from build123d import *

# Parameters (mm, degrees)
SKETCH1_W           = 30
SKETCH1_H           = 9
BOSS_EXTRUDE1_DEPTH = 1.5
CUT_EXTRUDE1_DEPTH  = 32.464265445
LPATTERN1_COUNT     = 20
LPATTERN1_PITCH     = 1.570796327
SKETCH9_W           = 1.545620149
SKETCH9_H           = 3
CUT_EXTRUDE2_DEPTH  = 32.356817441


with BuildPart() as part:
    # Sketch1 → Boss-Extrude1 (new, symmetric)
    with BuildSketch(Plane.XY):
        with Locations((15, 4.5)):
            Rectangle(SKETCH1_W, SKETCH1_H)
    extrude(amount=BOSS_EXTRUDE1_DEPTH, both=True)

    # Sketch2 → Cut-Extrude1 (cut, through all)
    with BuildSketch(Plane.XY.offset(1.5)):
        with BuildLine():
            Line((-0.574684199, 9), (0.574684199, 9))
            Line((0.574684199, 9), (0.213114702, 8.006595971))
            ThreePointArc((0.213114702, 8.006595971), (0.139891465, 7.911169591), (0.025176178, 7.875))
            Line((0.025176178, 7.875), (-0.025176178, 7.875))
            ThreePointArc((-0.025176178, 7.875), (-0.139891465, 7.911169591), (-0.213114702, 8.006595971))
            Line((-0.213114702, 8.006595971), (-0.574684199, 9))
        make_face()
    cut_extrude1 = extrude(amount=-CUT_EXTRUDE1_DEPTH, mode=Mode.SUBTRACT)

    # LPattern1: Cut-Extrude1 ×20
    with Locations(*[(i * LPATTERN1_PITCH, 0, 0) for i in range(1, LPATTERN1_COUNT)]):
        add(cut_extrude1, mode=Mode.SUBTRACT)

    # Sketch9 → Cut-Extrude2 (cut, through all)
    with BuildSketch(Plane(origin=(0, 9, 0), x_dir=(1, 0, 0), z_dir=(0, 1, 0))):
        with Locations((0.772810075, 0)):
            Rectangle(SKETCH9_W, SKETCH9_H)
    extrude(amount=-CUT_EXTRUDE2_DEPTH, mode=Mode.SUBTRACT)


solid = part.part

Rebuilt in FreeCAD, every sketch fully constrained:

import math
import FreeCAD as App
import Part
import Sketcher
from FreeCAD import Vector
Q = App.Units.Quantity

doc = App.newDocument("Part")
params = doc.addObject("Spreadsheet::Sheet", "Params")
for row, (alias, value) in enumerate([
    ("sketch1_width", "30 mm"),
    ("sketch1_height", "9 mm"),
    ("pad1_length", "3 mm"),
    ("sketch2_radius", "0.2 mm"),
    ("linearpattern_pitch", "1.570796 mm"),
    ("sketch3_height", "3 mm"),
], start=1):
    params.set(f"A{row}", alias)
    params.set(f"B{row}", "=" + value)
    params.setAlias(f"B{row}", alias)

body = doc.addObject("PartDesign::Body", "Body")

sketch1 = body.newObject("Sketcher::SketchObject", "Sketch")
sketch1.AttachmentSupport = (doc.getObject("XY_Plane"), [""])
sketch1.MapMode = "FlatFace"
sketch1.addGeometry([
    Part.LineSegment(Vector(0, 9, 0), Vector(0, 0, 0)),
    Part.LineSegment(Vector(0, 0, 0), Vector(30, 0, 0)),
    Part.LineSegment(Vector(30, 0, 0), Vector(30, 9, 0)),
    Part.LineSegment(Vector(30, 9, 0), Vector(0, 9, 0)),
], False)
sketch1.addConstraint([
    Sketcher.Constraint("Coincident", 0, 2, 1, 1),
    Sketcher.Constraint("Coincident", 1, 2, 2, 1),
    Sketcher.Constraint("Coincident", 2, 2, 3, 1),
    Sketcher.Constraint("Coincident", 3, 2, 0, 1),
    Sketcher.Constraint("Vertical", 0),
    Sketcher.Constraint("Horizontal", 1),
    Sketcher.Constraint("Vertical", 2),
    Sketcher.Constraint("Horizontal", 3),
    Sketcher.Constraint("Coincident", 0, 2, -1, 1),
    Sketcher.Constraint("DistanceX", 1, 1, 1, 2, Q("30 mm")),
    Sketcher.Constraint("DistanceY", 0, 2, 0, 1, Q("9 mm")),
])
sketch1.setExpression("Constraints[9]", "Params.sketch1_width")
sketch1.setExpression("Constraints[10]", "Params.sketch1_height")
pad1 = body.newObject("PartDesign::Pad", "Pad")
pad1.Profile = sketch1
pad1.setExpression("Length", "Params.pad1_length")
pad1.Midplane = True

sketch2 = body.newObject("Sketcher::SketchObject", "Sketch001")
sketch2.AttachmentSupport = (doc.getObject("XY_Plane"), [""])
sketch2.MapMode = "FlatFace"
sketch2.AttachmentOffset = App.Placement(Vector(0, 0, 1.5), App.Rotation())
sketch2.addGeometry([
    Part.LineSegment(Vector(0.57, 9, 0), Vector(-0.57, 9, 0)),
    Part.LineSegment(Vector(-0.57, 9, 0), Vector(-0.21, 8.01, 0)),
    Part.ArcOfCircle(Part.Circle(Vector(-0.03, 8.07, 0), Vector(0, 0, 1), 0.2), math.radians(-160), math.radians(-90)),
    Part.LineSegment(Vector(-0.03, 7.88, 0), Vector(0.03, 7.88, 0)),
    Part.ArcOfCircle(Part.Circle(Vector(0.03, 8.07, 0), Vector(0, 0, 1), 0.2), math.radians(-90), math.radians(-20)),
    Part.LineSegment(Vector(0.21, 8.01, 0), Vector(0.57, 9, 0)),
], False)
sketch2.addConstraint([
    Sketcher.Constraint("Coincident", 0, 2, 1, 1),
    Sketcher.Constraint("Tangent", 1, 2, 2, 1),
    Sketcher.Constraint("Tangent", 2, 2, 3, 1),
    Sketcher.Constraint("Tangent", 3, 2, 4, 1),
    Sketcher.Constraint("Tangent", 4, 2, 5, 1),
    Sketcher.Constraint("Coincident", 5, 2, 0, 1),
    Sketcher.Constraint("Horizontal", 0),
    Sketcher.Constraint("Horizontal", 3),
    Sketcher.Constraint("Equal", 2, 4),
    Sketcher.Constraint("Symmetric", 1, 2, 4, 2, -2),
    Sketcher.Constraint("Radius", 2, Q("0.2 mm")),
    Sketcher.Constraint("Angle", 1, Q("-70 deg")),
    Sketcher.Constraint("DistanceY", -1, 1, 0, 2, Q("9 mm")),
    Sketcher.Constraint("DistanceY", -1, 1, 2, 3, Q("8.075 mm")),
    Sketcher.Constraint("DistanceX", 0, 2, 0, 1, Q("1.149368 mm")),
])
sketch2.setExpression("Constraints[10]", "Params.sketch2_radius")
pocket1 = body.newObject("PartDesign::Pocket", "Pocket")
pocket1.Profile = sketch2
pocket1.Type = "ThroughAll"
doc.recompute()

linearpattern = body.newObject("PartDesign::LinearPattern", "LinearPattern")
linearpattern.Originals = [pocket1]
linearpattern.Direction = (doc.getObject("X_Axis"), [""])
linearpattern.Mode = "offset"
linearpattern.setExpression("Offset", "Params.linearpattern_pitch")
linearpattern.Occurrences = 20
body.Tip = linearpattern

sketch3 = body.newObject("Sketcher::SketchObject", "Sketch002")
sketch3.AttachmentSupport = (doc.getObject("XZ_Plane"), [""])
sketch3.MapMode = "FlatFace"
sketch3.AttachmentOffset = App.Placement(Vector(0, 0, -9), App.Rotation())
sketch3.addGeometry([
    Part.LineSegment(Vector(0, -1.5, 0), Vector(0, 1.5, 0)),
    Part.LineSegment(Vector(0, 1.5, 0), Vector(1.5, 1.5, 0)),
    Part.LineSegment(Vector(1.5, 1.5, 0), Vector(1.5, -1.5, 0)),
    Part.LineSegment(Vector(1.5, -1.5, 0), Vector(0, -1.5, 0)),
], False)
sketch3.addConstraint([
    Sketcher.Constraint("Coincident", 0, 2, 1, 1),
    Sketcher.Constraint("Coincident", 1, 2, 2, 1),
    Sketcher.Constraint("Coincident", 2, 2, 3, 1),
    Sketcher.Constraint("Coincident", 3, 2, 0, 1),
    Sketcher.Constraint("Vertical", 0),
    Sketcher.Constraint("Horizontal", 1),
    Sketcher.Constraint("Vertical", 2),
    Sketcher.Constraint("Horizontal", 3),
    Sketcher.Constraint("Symmetric", 0, 2, 3, 2, -1, 1),
    Sketcher.Constraint("DistanceY", 0, 1, 0, 2, Q("3 mm")),
    Sketcher.Constraint("DistanceX", 1, 1, 1, 2, Q("1.54562 mm")),
])
sketch3.setExpression("Constraints[9]", "Params.sketch3_height")
pocket2 = body.newObject("PartDesign::Pocket", "Pocket001")
pocket2.Profile = sketch3
pocket2.Type = "ThroughAll"
pocket2.Reversed = True

doc.recompute()
